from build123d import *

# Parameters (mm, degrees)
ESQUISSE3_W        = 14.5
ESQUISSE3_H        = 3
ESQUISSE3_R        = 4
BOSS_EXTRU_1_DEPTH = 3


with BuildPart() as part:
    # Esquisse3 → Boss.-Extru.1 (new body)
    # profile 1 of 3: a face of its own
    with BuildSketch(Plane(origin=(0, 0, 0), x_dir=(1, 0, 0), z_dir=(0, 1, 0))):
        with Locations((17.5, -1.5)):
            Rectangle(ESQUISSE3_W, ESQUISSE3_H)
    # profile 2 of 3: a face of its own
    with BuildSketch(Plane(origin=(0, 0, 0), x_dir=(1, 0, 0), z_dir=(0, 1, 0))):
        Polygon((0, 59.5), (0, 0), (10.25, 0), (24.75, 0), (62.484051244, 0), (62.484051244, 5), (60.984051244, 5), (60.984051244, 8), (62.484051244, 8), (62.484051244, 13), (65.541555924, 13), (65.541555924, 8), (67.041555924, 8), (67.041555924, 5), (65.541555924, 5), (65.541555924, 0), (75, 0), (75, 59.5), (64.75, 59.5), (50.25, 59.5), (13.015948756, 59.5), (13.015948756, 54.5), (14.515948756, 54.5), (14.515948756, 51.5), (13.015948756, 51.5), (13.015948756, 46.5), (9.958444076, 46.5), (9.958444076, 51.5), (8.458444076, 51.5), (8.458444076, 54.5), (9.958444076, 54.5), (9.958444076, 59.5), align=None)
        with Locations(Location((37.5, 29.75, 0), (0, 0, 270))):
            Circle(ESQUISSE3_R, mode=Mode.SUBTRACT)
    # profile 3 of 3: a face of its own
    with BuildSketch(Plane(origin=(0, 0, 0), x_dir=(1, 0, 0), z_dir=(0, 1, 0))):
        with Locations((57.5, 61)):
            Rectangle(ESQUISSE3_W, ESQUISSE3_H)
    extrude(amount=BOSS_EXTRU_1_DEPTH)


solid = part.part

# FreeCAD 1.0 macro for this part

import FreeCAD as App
import Part
import Sketcher

V = App.Vector
Q = App.Units.Quantity


def add_polygon(sketch, points):
    """Adds a closed chain of lines whose ends are joined by coincident constraints."""
    first, n = sketch.GeometryCount, len(points)
    for a, b in zip(points, points[1:] + points[:1]):
        sketch.addGeometry(Part.LineSegment(App.Vector(*a, 0), App.Vector(*b, 0)), False)
    for i in range(n):
        sketch.addConstraint(Sketcher.Constraint("Coincident", first + i, 2, first + (i + 1) % n, 1))

doc = App.newDocument("Part")
params = doc.addObject("Spreadsheet::Sheet", "Params")
for row, (alias, value) in enumerate([
    ("sketch1_diameter", "8 mm"),
    ("sketch1_height", "3 mm"),
    ("sketch1_height2", "5 mm"),
    ("sketch1_width", "14.5 mm"),
    ("sketch1_width2", "1.5 mm"),
    ("pad1_length", "3 mm"),
], start=1):
    params.set(f"A{row}", alias)
    params.set(f"B{row}", "=" + value)
    params.setAlias(f"B{row}", alias)

body = doc.addObject("PartDesign::Body", "Body")

# Sketch on XZ plane
sketch1 = body.newObject("Sketcher::SketchObject", "Sketch")
sketch1.AttachmentSupport = (doc.getObject("XZ_Plane"), [""])
sketch1.MapMode = "FlatFace"
add_polygon(sketch1, [(10.2, 0), (10.2, 3), (24.8, 3), (24.8, 0), (62.5, 0), (62.5, -5), (61, -5), (61, -8), (62.5, -8), (62.5, -13), (65.5, -13), (65.5, -8), (67, -8), (67, -5), (65.5, -5), (65.5, 0), (75, 0), (75, -59.5), (64.8, -59.5), (64.8, -62.5), (50.2, -62.5), (50.2, -59.5), (13, -59.5), (13, -54.5), (14.5, -54.5), (14.5, -51.5), (13, -51.5), (13, -46.5), (10, -46.5), (10, -51.5), (8.5, -51.5), (8.5, -54.5), (10, -54.5), (10, -59.5), (0, -59.5), (0, 0)])  # lines 0-35
sketch1.addGeometry(Part.Circle(V(37.5, -29.8, 0), V(0, 0, 1), 4), False)  # 36
sketch1.addConstraint(Sketcher.Constraint("Vertical", 0))
sketch1.addConstraint(Sketcher.Constraint("Horizontal", 1))
sketch1.addConstraint(Sketcher.Constraint("Vertical", 2))
sketch1.addConstraint(Sketcher.Constraint("Horizontal", 3))
sketch1.addConstraint(Sketcher.Constraint("Vertical", 4))
sketch1.addConstraint(Sketcher.Constraint("Horizontal", 5))
sketch1.addConstraint(Sketcher.Constraint("Vertical", 6))
sketch1.addConstraint(Sketcher.Constraint("Horizontal", 7))
sketch1.addConstraint(Sketcher.Constraint("Vertical", 8))
sketch1.addConstraint(Sketcher.Constraint("Horizontal", 9))
sketch1.addConstraint(Sketcher.Constraint("Vertical", 10))
sketch1.addConstraint(Sketcher.Constraint("Horizontal", 11))
sketch1.addConstraint(Sketcher.Constraint("Vertical", 12))
sketch1.addConstraint(Sketcher.Constraint("Horizontal", 13))
sketch1.addConstraint(Sketcher.Constraint("Vertical", 14))
sketch1.addConstraint(Sketcher.Constraint("Horizontal", 15))
sketch1.addConstraint(Sketcher.Constraint("Vertical", 16))
sketch1.addConstraint(Sketcher.Constraint("Horizontal", 17))
sketch1.addConstraint(Sketcher.Constraint("Vertical", 18))
sketch1.addConstraint(Sketcher.Constraint("Horizontal", 19))
sketch1.addConstraint(Sketcher.Constraint("Vertical", 20))
sketch1.addConstraint(Sketcher.Constraint("Horizontal", 21))
sketch1.addConstraint(Sketcher.Constraint("Vertical", 22))
sketch1.addConstraint(Sketcher.Constraint("Horizontal", 23))
sketch1.addConstraint(Sketcher.Constraint("Vertical", 24))
sketch1.addConstraint(Sketcher.Constraint("Horizontal", 25))
sketch1.addConstraint(Sketcher.Constraint("Vertical", 26))
sketch1.addConstraint(Sketcher.Constraint("Horizontal", 27))
sketch1.addConstraint(Sketcher.Constraint("Vertical", 28))
sketch1.addConstraint(Sketcher.Constraint("Horizontal", 29))
sketch1.addConstraint(Sketcher.Constraint("Vertical", 30))
sketch1.addConstraint(Sketcher.Constraint("Horizontal", 31))
sketch1.addConstraint(Sketcher.Constraint("Vertical", 32))
sketch1.addConstraint(Sketcher.Constraint("Horizontal", 33))
sketch1.addConstraint(Sketcher.Constraint("Vertical", 34))
sketch1.addConstraint(Sketcher.Constraint("Horizontal", 35))
sketch1.addConstraint(Sketcher.Constraint("Coincident", 34, 2, -1, 1))
sketch1.addConstraint(Sketcher.Constraint("PointOnObject", 2, 2, -1))
sketch1.addConstraint(Sketcher.Constraint("PointOnObject", 14, 2, -1))
sketch1.addConstraint(Sketcher.Constraint("Horizontal", 7, 2, 10, 2))
sketch1.addConstraint(Sketcher.Constraint("Horizontal", 5, 2, 12, 2))
sketch1.addConstraint(Sketcher.Constraint("Horizontal", 17, 2, 20, 2))
sketch1.addConstraint(Sketcher.Constraint("Horizontal", 25, 2, 28, 2))
sketch1.addConstraint(Sketcher.Constraint("Horizontal", 23, 2, 30, 2))
sketch1.addConstraint(Sketcher.Constraint("Horizontal", 21, 2, 32, 2))
sketch1.addConstraint(Sketcher.Constraint("Vertical", 4, 2, 7, 2))
sketch1.addConstraint(Sketcher.Constraint("Vertical", 10, 2, 13, 2))
sketch1.addConstraint(Sketcher.Constraint("Vertical", 22, 2, 25, 2))
sketch1.addConstraint(Sketcher.Constraint("Vertical", 28, 2, 31, 2))
sketch1.addConstraint(Sketcher.Constraint("Equal", 7, 11))
sketch1.addConstraint(Sketcher.Constraint("Equal", 1, 19))
sketch1.addConstraint(Sketcher.Constraint("Equal", 13, 23))
sketch1.addConstraint(Sketcher.Constraint("Equal", 9, 27))
sketch1.addConstraint(Sketcher.Constraint("Equal", 25, 29))
sketch1.addConstraint(Sketcher.Constraint("Equal", 17, 35))
sketch1.addConstraint(Sketcher.Constraint("Equal", 2, 6))
sketch1.addConstraint(Sketcher.Constraint("Equal", 4, 8))
sketch1.addConstraint(Sketcher.Constraint("Equal", 12, 18))
sketch1.addConstraint(Sketcher.Constraint("Equal", 14, 22))
sketch1.addConstraint(Sketcher.Constraint("Equal", 20, 24))
sketch1.addConstraint(Sketcher.Constraint("Equal", 22, 26))
sketch1.addConstraint(Sketcher.Constraint("Diameter", 36, Q("8 mm")))
sketch1.addConstraint(Sketcher.Constraint("DistanceY", 0, 1, 0, 2, Q("3 mm")))
sketch1.addConstraint(Sketcher.Constraint("DistanceY", 4, 2, 4, 1, Q("5 mm")))
sketch1.addConstraint(Sketcher.Constraint("DistanceX", 1, 1, 1, 2, Q("14.5 mm")))
sketch1.addConstraint(Sketcher.Constraint("DistanceX", 5, 2, 5, 1, Q("1.5 mm")))
sketch1.addConstraint(Sketcher.Constraint("DistanceY", 16, 2, 16, 1, Q("59.5 mm")))
sketch1.addConstraint(Sketcher.Constraint("DistanceX", -1, 1, 15, 2, Q("75 mm")))
sketch1.addConstraint(Sketcher.Constraint("DistanceX", 17, 2, 17, 1, Q("10.25 mm")))
sketch1.addConstraint(Sketcher.Constraint("DistanceX", -1, 1, 36, 3, Q("37.5 mm")))
sketch1.addConstraint(Sketcher.Constraint("DistanceY", 36, 3, -1, 1, Q("29.75 mm")))
sketch1.addConstraint(Sketcher.Constraint("DistanceX", 3, 1, 3, 2, Q("37.734051 mm")))
sketch1.addConstraint(Sketcher.Constraint("DistanceX", 21, 2, 21, 1, Q("37.234051 mm")))
sketch1.addConstraint(Sketcher.Constraint("DistanceX", 9, 1, 9, 2, Q("3.057505 mm")))
sketch1.setExpression("Constraints[97]", "Params.sketch1_diameter")
sketch1.setExpression("Constraints[98]", "Params.sketch1_height")
sketch1.setExpression("Constraints[99]", "Params.sketch1_height2")
sketch1.setExpression("Constraints[100]", "Params.sketch1_width")
sketch1.setExpression("Constraints[101]", "Params.sketch1_width2")
pad1 = body.newObject("PartDesign::Pad", "Pad")
pad1.Profile = sketch1
pad1.setExpression("Length", "Params.pad1_length")
pad1.Reversed = True

doc.recompute()
